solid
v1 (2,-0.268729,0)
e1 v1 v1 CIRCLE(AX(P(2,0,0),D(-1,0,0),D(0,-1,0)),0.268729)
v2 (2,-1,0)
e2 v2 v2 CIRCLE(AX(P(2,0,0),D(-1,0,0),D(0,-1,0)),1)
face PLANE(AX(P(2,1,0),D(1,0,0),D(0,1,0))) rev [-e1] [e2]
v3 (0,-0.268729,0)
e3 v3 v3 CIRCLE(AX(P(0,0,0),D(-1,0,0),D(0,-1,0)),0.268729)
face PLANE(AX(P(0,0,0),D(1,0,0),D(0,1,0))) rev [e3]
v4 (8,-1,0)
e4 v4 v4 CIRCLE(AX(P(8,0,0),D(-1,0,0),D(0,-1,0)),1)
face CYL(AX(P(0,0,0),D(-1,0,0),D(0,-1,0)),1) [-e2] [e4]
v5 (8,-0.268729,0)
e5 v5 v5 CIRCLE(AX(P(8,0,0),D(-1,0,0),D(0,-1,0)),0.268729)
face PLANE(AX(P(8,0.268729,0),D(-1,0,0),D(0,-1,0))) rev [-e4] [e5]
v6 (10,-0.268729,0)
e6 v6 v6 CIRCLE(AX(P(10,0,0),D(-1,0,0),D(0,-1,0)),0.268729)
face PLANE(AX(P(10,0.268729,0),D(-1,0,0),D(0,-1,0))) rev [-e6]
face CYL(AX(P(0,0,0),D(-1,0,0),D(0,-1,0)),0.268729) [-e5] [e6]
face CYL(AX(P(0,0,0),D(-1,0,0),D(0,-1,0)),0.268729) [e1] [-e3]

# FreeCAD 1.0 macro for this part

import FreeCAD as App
import Part
import Sketcher
from FreeCAD import Vector


def add_polygon(sketch, points):
    """Adds a closed chain of lines whose ends are joined by coincident constraints."""
    first, n = sketch.GeometryCount, len(points)
    for a, b in zip(points, points[1:] + points[:1]):
        sketch.addGeometry(Part.LineSegment(App.Vector(*a, 0), App.Vector(*b, 0)), False)
    for i in range(n):
        sketch.addConstraint(Sketcher.Constraint("Coincident", first + i, 2, first + (i + 1) % n, 1))

doc = App.newDocument("Part")
params = doc.addObject("Spreadsheet::Sheet", "Params")
for row, (alias, value) in enumerate([
    ("sketch1_width", "10 mm"),
    ("sketch1_width2", "2 mm"),
    ("revolution_angle", "360 deg"),
], start=1):
    params.set(f"A{row}", alias)
    params.set(f"B{row}", "=" + value)
    params.setAlias(f"B{row}", alias)

body = doc.addObject("PartDesign::Body", "Body")

sketch1 = body.newObject("Sketcher::SketchObject", "Sketch")
sketch1.AttachmentSupport = (doc.getObject("XY_Plane"), [""])
sketch1.MapMode = "FlatFace"
add_polygon(sketch1, [(0, 0), (10, 0), (10, 0.27), (8, 0.27), (8, 1), (2, 1), (2, 0.27), (0, 0.27)])
sketch1.addConstraint([
    Sketcher.Constraint("Horizontal", 0),
    Sketcher.Constraint("Vertical", 1),
    Sketcher.Constraint("Horizontal", 2),
    Sketcher.Constraint("Vertical", 3),
    Sketcher.Constraint("Horizontal", 4),
    Sketcher.Constraint("Vertical", 5),
    Sketcher.Constraint("Horizontal", 6),
    Sketcher.Constraint("Vertical", 7),
    Sketcher.Constraint("Coincident", 7, 2, -1, 1),
    Sketcher.Constraint("Horizontal", 2, 2, 5, 2),
    Sketcher.Constraint("Equal", 2, 6),
    Sketcher.Constraint("DistanceX", 0, 1, 0, 2, 10.0),
    Sketcher.Constraint("DistanceX", 2, 2, 2, 1, 2.0),
    Sketcher.Constraint("DistanceY", -1, 1, 3, 2, 1.0),
    Sketcher.Constraint("DistanceY", 1, 1, 1, 2, 0.268729),
])
sketch1.setExpression("Constraints[19]", "Params.sketch1_width")
sketch1.setExpression("Constraints[20]", "Params.sketch1_width2")
revolution = body.newObject("PartDesign::Revolution", "Revolution")
revolution.Profile = sketch1
revolution.ReferenceAxis = (sketch1, ["H_Axis"])
revolution.setExpression("Angle", "Params.revolution_angle")

doc.recompute()
